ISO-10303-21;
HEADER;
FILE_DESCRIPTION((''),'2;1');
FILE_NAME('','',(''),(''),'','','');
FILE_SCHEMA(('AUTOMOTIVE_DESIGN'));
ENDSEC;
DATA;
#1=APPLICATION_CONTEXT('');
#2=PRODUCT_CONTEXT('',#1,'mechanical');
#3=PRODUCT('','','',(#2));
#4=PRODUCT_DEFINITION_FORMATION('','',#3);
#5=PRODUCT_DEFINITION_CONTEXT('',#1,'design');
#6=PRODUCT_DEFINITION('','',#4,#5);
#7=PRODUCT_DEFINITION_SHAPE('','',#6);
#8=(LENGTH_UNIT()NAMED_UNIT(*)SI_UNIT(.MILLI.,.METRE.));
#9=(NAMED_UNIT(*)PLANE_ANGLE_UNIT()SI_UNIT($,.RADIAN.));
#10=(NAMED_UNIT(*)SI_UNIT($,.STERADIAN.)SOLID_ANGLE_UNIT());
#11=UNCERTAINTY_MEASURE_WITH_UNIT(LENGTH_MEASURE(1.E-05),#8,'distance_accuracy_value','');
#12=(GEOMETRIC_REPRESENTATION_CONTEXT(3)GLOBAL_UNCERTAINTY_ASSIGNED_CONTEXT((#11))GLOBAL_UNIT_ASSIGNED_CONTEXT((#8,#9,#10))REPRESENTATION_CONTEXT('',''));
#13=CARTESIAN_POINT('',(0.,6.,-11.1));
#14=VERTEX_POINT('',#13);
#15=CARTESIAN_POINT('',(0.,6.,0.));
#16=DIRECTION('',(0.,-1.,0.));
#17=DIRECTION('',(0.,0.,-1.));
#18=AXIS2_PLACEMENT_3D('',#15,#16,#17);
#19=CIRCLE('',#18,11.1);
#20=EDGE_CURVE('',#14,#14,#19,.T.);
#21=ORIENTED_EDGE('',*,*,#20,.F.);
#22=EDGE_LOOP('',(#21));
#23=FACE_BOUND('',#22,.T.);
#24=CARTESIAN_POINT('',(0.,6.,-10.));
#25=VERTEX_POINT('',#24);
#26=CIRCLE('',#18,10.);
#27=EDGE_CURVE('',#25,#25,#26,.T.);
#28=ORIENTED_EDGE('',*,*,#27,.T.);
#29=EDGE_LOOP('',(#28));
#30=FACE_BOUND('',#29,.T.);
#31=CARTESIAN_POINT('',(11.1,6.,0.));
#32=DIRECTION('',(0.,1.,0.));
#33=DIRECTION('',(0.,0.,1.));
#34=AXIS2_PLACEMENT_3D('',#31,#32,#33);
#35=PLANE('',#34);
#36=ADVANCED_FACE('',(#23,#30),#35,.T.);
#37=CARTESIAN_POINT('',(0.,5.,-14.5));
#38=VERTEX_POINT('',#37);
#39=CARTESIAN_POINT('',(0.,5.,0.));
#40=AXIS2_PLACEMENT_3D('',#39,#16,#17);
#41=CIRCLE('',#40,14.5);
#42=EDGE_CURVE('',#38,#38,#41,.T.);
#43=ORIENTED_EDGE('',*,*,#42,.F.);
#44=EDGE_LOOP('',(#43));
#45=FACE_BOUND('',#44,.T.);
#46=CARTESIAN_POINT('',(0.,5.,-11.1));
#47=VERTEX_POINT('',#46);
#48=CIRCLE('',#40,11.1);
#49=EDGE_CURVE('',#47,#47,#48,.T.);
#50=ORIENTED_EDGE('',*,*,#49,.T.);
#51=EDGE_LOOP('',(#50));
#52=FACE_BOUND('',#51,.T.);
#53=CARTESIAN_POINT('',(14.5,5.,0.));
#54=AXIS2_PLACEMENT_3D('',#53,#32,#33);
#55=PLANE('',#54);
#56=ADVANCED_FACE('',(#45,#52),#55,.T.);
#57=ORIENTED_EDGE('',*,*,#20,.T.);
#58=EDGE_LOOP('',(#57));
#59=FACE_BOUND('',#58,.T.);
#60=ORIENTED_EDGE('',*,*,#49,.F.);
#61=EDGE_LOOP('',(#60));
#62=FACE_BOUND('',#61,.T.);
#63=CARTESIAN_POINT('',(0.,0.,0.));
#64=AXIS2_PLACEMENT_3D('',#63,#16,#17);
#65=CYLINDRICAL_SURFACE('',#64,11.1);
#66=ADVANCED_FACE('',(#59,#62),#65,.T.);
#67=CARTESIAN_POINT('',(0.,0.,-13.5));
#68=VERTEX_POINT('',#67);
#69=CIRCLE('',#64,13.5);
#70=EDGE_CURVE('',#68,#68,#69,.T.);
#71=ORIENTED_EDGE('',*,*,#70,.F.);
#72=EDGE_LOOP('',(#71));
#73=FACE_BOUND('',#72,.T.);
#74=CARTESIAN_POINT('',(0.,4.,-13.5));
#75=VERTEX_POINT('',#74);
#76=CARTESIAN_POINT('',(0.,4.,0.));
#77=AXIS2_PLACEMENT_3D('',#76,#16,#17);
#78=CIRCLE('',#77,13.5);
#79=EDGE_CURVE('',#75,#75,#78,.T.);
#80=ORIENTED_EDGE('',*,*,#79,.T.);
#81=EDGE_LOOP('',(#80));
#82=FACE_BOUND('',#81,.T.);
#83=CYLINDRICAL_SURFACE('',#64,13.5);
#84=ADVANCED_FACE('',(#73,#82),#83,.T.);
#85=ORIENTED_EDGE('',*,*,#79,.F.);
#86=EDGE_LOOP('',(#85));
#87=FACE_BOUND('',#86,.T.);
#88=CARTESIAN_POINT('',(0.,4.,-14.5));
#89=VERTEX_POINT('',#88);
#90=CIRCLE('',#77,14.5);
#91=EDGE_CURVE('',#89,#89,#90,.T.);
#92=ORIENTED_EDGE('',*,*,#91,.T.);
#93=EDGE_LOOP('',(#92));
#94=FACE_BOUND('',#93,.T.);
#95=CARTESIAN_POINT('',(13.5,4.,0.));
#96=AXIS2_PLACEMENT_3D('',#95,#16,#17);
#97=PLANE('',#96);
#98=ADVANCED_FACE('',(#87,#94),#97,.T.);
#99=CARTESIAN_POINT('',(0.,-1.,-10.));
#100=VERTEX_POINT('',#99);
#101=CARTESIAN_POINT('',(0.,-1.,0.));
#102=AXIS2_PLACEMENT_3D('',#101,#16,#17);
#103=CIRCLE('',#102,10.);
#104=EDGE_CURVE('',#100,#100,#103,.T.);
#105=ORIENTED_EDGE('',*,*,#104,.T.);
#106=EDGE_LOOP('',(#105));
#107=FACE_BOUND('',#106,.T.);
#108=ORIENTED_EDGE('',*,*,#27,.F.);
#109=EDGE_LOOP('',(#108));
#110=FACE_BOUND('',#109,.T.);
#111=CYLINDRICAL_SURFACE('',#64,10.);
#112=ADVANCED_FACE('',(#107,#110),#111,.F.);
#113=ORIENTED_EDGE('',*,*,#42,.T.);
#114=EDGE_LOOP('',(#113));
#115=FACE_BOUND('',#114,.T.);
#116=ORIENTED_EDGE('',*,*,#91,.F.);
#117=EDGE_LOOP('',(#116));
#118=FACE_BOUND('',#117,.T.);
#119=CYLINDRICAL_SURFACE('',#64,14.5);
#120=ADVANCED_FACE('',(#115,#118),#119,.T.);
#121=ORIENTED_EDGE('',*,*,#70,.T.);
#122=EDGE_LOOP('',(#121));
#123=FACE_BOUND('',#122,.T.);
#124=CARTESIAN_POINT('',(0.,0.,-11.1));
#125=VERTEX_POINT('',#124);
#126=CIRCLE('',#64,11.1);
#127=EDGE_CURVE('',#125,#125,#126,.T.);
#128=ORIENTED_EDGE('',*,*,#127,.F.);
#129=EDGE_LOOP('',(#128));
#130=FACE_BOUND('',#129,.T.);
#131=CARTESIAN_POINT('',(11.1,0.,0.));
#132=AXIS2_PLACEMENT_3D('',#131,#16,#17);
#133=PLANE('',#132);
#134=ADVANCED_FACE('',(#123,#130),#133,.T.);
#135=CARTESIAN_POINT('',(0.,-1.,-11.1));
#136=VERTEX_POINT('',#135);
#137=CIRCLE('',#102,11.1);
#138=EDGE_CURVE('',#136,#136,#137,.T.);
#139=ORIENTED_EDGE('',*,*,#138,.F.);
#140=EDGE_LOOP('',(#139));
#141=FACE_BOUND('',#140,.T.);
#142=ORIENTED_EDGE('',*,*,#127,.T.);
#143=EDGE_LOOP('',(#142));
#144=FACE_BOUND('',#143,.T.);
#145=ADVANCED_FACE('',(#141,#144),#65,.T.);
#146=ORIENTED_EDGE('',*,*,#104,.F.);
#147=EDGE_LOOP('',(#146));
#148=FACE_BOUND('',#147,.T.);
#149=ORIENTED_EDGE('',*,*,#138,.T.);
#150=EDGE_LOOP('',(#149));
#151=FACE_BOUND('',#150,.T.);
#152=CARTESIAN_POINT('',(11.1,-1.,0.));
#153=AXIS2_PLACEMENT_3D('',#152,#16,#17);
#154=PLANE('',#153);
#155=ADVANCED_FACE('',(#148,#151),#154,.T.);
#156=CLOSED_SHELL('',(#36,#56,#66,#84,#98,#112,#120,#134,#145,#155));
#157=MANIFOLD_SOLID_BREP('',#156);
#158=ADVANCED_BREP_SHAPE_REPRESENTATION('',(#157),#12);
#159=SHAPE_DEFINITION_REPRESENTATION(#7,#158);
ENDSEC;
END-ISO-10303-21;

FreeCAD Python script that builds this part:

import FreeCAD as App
import Part
import Sketcher

V = App.Vector
Q = App.Units.Quantity

doc = App.newDocument("Part")
body = doc.addObject("PartDesign::Body", "Body")

# Sketch on XY plane
sketch1 = body.newObject("Sketcher::SketchObject", "Sketch")
sketch1.AttachmentSupport = (doc.getObject("XY_Plane"), [""])
sketch1.MapMode = "FlatFace"
sketch1.addGeometry([
    Part.LineSegment(V(11.1, 0, 0), V(13.5, 0, 0)),  # 0
    Part.LineSegment(V(13.5, 0, 0), V(13.5, 4, 0)),  # 1
    Part.LineSegment(V(13.5, 4, 0), V(14.5, 4, 0)),  # 2
    Part.LineSegment(V(14.5, 4, 0), V(14.5, 5, 0)),  # 3
    Part.LineSegment(V(14.5, 5, 0), V(11.1, 5, 0)),  # 4
    Part.LineSegment(V(11.1, 5, 0), V(11.1, 6, 0)),  # 5
    Part.LineSegment(V(11.1, 6, 0), V(10, 6, 0)),  # 6
    Part.LineSegment(V(10, 6, 0), V(10, -1, 0)),  # 7
    Part.LineSegment(V(10, -1, 0), V(11.1, -1, 0)),  # 8
    Part.LineSegment(V(11.1, -1, 0), V(11.1, 0, 0)),  # 9
], False)
sketch1.addConstraint([
    Sketcher.Constraint("Coincident", 0, 2, 1, 1),
    Sketcher.Constraint("Coincident", 1, 2, 2, 1),
    Sketcher.Constraint("Coincident", 2, 2, 3, 1),
    Sketcher.Constraint("Coincident", 3, 2, 4, 1),
    Sketcher.Constraint("Coincident", 4, 2, 5, 1),
    Sketcher.Constraint("Coincident", 5, 2, 6, 1),
    Sketcher.Constraint("Coincident", 6, 2, 7, 1),
    Sketcher.Constraint("Coincident", 7, 2, 8, 1),
    Sketcher.Constraint("Coincident", 8, 2, 9, 1),
    Sketcher.Constraint("Coincident", 9, 2, 0, 1),
    Sketcher.Constraint("Horizontal", 0),
    Sketcher.Constraint("Vertical", 1),
    Sketcher.Constraint("Horizontal", 2),
    Sketcher.Constraint("Vertical", 3),
    Sketcher.Constraint("Horizontal", 4),
    Sketcher.Constraint("Vertical", 5),
    Sketcher.Constraint("Horizontal", 6),
    Sketcher.Constraint("Vertical", 7),
    Sketcher.Constraint("Horizontal", 8),
    Sketcher.Constraint("Vertical", 9),
    Sketcher.Constraint("PointOnObject", 0, 2, -1),
    Sketcher.Constraint("Vertical", 5, 2, 8, 2),
    Sketcher.Constraint("Equal", 2, 3),
    Sketcher.Constraint("Equal", 3, 5),
    Sketcher.Constraint("Equal", 5, 9),
    Sketcher.Constraint("DistanceX", 2, 1, 2, 2, Q("1 mm")),
    Sketcher.Constraint("DistanceY", 1, 1, 1, 2, Q("4 mm")),
    Sketcher.Constraint("DistanceX", 0, 1, 0, 2, Q("2.4 mm")),
    Sketcher.Constraint("DistanceX", 6, 2, 6, 1, Q("1.1 mm")),
    Sketcher.Constraint("DistanceX", -1, 1, 6, 2, Q("10 mm")),
])
revolution = body.newObject("PartDesign::Revolution", "Revolution")
revolution.Profile = sketch1
revolution.ReferenceAxis = (sketch1, ["V_Axis"])
revolution.Angle = 360

doc.recompute()
